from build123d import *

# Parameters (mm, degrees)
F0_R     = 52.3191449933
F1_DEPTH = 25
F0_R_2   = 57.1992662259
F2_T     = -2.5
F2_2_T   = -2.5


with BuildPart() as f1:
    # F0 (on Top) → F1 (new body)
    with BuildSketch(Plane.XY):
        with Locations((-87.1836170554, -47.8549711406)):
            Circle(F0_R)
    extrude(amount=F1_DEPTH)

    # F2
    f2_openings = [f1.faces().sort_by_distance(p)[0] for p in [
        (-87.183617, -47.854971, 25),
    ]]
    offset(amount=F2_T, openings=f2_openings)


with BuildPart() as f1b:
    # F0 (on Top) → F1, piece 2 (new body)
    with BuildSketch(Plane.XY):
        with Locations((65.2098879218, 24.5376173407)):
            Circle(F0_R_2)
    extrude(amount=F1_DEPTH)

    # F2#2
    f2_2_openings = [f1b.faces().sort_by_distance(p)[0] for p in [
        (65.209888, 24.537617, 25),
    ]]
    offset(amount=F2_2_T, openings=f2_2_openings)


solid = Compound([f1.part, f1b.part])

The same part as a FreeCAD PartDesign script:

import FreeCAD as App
import Part
import Sketcher
from FreeCAD import Vector
Q = App.Units.Quantity


def faces_at(feature, points):
    """Names of the faces that lie closest to the given points."""
    faces = feature.Shape.Faces
    near = lambda p: min(range(len(faces)), key=lambda i: faces[i].distToShape(Part.Vertex(*p))[0])
    return sorted({f"Face{near(p) + 1}" for p in points})

doc = App.newDocument("Part")
body = doc.addObject("PartDesign::Body", "Body")

# Sketch on XY plane
sketch1 = body.newObject("Sketcher::SketchObject", "Sketch")
sketch1.AttachmentSupport = (doc.getObject("XY_Plane"), [""])
sketch1.MapMode = "FlatFace"
sketch1.addGeometry(Part.Circle(Vector(-87, -48, 0), Vector(0, 0, 1), 52), False)
sketch1.addConstraint([
    Sketcher.Constraint("Diameter", 0, Q("104.63829 mm")),
    Sketcher.Constraint("DistanceY", 0, 3, -1, 1, Q("47.854971 mm")),
    Sketcher.Constraint("DistanceX", 0, 3, -1, 1, Q("87.183617 mm")),
])
pad1 = body.newObject("PartDesign::Pad", "Pad")
pad1.Profile = sketch1
pad1.Length = 25
doc.recompute()

thickness = body.newObject("PartDesign::Thickness", "Thickness")
thickness.Base = (pad1, faces_at(pad1, [(-87.184, -47.855, 25)]))
thickness.Value = 2.5
thickness.Reversed = True
thickness.Join = "Arc"
body2 = doc.addObject("PartDesign::Body", "Body001")

# Sketch on XY plane
sketch2 = body2.newObject("Sketcher::SketchObject", "Sketch001")
sketch2.AttachmentSupport = (doc.getObject("XY_Plane001"), [""])
sketch2.MapMode = "FlatFace"
sketch2.addGeometry(Part.Circle(Vector(65, 25, 0), Vector(0, 0, 1), 57), False)
sketch2.addConstraint([
    Sketcher.Constraint("Diameter", 0, Q("114.398532 mm")),
    Sketcher.Constraint("DistanceX", -1, 1, 0, 3, Q("65.209888 mm")),
    Sketcher.Constraint("DistanceY", -1, 1, 0, 3, Q("24.537617 mm")),
])
pad2 = body2.newObject("PartDesign::Pad", "Pad001")
pad2.Profile = sketch2
pad2.Length = 25
doc.recompute()

thickness2 = body2.newObject("PartDesign::Thickness", "Thickness001")
thickness2.Base = (pad2, faces_at(pad2, [(65.21, 24.538, 25)]))
thickness2.Value = 2.5
thickness2.Reversed = True
thickness2.Join = "Arc"

doc.recompute()
